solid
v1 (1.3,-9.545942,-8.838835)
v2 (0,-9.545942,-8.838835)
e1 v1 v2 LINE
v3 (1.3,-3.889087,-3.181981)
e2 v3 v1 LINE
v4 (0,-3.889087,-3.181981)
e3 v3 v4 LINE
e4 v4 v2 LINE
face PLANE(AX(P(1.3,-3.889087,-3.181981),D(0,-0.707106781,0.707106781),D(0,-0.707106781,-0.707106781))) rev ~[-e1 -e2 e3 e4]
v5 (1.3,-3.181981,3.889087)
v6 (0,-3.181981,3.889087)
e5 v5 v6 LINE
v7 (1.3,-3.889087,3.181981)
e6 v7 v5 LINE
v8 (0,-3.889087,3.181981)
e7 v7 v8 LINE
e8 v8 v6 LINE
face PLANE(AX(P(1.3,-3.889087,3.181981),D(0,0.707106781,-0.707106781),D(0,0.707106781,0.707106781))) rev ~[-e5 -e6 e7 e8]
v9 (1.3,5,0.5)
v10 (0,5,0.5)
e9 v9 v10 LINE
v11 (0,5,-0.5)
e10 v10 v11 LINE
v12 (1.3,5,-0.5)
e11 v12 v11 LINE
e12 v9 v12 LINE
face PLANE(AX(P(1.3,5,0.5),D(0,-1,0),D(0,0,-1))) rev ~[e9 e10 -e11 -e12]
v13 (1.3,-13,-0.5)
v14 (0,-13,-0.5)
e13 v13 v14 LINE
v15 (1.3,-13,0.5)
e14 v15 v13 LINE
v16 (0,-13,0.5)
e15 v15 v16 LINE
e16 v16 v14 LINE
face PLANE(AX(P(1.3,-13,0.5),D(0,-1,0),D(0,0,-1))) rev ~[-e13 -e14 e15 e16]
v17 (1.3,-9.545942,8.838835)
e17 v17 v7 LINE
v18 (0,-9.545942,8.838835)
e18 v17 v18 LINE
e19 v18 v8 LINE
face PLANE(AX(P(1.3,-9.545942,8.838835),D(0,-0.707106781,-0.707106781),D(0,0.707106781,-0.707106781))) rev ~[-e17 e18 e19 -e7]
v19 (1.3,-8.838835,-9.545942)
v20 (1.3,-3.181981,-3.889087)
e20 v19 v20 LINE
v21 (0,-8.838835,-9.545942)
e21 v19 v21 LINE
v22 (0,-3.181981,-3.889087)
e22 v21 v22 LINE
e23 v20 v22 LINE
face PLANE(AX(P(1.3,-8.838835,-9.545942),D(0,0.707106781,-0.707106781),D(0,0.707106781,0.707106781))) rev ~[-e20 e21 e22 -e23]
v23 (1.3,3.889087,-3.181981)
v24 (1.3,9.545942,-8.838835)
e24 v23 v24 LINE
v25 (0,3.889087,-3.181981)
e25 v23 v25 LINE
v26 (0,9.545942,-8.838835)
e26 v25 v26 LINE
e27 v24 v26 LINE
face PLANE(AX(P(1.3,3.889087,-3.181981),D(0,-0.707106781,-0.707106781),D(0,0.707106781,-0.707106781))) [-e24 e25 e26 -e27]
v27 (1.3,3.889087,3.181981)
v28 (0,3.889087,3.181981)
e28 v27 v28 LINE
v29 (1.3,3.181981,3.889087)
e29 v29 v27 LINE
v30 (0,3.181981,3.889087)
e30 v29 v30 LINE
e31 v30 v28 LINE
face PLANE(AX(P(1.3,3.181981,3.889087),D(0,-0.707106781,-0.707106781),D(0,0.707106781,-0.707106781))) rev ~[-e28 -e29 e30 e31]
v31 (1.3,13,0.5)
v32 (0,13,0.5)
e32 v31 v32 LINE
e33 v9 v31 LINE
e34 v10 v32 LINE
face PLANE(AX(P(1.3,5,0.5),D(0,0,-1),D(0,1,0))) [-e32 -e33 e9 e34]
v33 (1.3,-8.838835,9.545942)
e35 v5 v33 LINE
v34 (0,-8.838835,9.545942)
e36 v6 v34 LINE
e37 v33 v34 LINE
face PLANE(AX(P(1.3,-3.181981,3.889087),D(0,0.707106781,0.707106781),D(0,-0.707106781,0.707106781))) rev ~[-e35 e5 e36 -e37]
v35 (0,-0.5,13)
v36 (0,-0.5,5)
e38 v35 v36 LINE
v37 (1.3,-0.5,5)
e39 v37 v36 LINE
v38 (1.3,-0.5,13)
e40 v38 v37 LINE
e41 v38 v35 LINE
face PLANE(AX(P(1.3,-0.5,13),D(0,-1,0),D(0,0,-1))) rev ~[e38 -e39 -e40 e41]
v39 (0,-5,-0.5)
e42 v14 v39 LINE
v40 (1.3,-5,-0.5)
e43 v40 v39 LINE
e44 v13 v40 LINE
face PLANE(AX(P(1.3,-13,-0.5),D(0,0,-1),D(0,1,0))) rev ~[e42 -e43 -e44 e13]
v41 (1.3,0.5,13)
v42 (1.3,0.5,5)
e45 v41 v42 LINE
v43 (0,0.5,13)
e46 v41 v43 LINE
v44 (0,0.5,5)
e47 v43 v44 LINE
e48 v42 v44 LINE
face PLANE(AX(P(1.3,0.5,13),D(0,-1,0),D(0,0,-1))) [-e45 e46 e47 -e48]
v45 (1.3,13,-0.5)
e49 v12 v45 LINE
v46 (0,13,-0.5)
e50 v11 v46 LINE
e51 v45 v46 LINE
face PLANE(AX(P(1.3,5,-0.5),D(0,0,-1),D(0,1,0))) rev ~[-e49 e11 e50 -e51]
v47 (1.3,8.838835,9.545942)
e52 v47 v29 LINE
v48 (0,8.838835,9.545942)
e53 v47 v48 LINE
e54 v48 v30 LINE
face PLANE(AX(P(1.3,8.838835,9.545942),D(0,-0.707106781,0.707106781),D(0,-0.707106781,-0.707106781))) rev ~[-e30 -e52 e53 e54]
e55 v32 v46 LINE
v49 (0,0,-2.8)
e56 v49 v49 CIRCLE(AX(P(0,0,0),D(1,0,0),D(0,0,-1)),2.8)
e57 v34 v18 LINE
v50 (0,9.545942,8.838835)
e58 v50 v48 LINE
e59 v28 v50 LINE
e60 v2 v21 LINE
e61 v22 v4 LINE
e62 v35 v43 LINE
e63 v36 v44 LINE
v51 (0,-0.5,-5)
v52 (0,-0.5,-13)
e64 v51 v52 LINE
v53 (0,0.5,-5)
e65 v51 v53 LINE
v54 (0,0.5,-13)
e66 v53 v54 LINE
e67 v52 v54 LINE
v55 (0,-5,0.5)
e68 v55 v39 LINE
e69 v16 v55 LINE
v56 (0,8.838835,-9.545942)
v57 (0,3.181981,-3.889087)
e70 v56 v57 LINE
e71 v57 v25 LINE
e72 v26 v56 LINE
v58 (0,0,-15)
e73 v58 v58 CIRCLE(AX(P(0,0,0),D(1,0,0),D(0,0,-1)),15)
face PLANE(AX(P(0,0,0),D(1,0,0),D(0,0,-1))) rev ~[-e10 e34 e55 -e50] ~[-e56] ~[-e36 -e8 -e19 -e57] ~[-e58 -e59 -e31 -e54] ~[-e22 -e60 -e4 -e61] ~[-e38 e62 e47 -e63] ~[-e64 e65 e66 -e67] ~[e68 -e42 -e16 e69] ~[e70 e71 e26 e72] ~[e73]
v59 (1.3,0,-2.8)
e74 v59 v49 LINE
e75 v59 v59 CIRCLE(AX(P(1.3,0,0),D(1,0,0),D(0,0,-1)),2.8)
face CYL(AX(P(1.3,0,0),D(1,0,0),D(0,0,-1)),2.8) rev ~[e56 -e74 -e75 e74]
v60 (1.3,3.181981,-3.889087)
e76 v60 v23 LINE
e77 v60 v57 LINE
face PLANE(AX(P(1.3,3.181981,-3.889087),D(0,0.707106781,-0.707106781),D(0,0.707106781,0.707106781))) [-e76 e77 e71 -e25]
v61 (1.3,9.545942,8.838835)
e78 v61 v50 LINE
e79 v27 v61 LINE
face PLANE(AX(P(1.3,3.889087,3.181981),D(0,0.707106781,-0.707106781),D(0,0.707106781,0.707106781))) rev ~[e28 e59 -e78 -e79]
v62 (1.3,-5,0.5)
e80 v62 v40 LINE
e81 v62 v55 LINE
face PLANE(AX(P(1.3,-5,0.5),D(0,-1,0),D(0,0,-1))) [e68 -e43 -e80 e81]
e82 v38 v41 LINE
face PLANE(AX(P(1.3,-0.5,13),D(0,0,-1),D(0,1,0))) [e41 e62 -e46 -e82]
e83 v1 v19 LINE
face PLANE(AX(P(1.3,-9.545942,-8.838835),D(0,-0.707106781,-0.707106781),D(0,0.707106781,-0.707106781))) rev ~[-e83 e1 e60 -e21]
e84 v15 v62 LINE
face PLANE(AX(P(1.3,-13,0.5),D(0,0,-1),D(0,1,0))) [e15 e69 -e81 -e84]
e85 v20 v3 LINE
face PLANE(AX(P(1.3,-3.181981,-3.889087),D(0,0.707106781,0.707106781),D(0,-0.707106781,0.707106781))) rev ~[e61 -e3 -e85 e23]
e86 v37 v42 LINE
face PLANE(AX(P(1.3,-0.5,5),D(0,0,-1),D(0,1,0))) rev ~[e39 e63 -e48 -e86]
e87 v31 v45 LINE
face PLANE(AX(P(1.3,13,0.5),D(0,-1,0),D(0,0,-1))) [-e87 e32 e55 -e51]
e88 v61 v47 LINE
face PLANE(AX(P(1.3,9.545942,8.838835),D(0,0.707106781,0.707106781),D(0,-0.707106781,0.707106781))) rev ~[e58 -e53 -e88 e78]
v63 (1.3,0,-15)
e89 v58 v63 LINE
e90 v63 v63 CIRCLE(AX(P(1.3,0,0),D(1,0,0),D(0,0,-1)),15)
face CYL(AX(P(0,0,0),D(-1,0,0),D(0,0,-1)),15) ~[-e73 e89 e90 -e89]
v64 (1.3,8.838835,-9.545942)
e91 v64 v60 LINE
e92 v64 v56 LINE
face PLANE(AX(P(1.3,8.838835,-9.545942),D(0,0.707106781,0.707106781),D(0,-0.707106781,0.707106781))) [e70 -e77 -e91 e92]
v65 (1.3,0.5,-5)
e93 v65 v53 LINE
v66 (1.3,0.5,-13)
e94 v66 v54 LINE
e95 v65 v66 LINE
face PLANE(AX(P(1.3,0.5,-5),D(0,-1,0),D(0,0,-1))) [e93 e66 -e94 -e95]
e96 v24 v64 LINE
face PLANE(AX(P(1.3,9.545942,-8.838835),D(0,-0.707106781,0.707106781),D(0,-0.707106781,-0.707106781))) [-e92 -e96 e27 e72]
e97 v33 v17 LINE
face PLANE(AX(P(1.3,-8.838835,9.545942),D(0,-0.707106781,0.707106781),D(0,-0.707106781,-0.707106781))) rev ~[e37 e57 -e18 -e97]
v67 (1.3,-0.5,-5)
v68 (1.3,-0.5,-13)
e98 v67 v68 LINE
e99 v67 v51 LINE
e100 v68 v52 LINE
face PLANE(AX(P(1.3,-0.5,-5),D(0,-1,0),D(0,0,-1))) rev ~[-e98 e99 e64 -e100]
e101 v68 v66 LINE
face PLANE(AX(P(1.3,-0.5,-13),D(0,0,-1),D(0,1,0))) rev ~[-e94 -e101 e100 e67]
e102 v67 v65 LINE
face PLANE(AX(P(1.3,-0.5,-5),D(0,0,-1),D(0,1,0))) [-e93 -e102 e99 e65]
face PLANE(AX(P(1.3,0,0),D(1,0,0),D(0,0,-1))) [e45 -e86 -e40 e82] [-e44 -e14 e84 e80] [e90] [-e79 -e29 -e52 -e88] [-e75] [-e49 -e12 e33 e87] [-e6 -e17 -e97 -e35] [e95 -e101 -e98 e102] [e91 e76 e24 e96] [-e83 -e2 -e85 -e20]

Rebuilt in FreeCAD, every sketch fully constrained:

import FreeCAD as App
import Part
import Sketcher

doc = App.newDocument("Part")
body = doc.addObject("PartDesign::Body", "Body")

sketch1 = doc.addObject("Sketcher::SketchObject", "Sketch")
body.addObject(sketch1)
sketch1.AttachmentSupport = (doc.YZ_Plane, [""])
sketch1.MapMode = "FlatFace"
sketch1.addGeometry(Part.Circle(App.Vector(0, 0, 0), App.Vector(0, 0, 1), 15), False)
sketch1.addConstraint([
    Sketcher.Constraint("Coincident", 0, 3, -1, 1),
    Sketcher.Constraint("Diameter", 0, 30.0),
])
pad1 = doc.addObject("PartDesign::Pad", "Pad")
body.addObject(pad1)
pad1.Profile = sketch1
pad1.Length = 1.3

sketch2 = doc.addObject("Sketcher::SketchObject", "Sketch001")
body.addObject(sketch2)
sketch2.AttachmentSupport = (doc.YZ_Plane, [""])
sketch2.MapMode = "FlatFace"
sketch2.AttachmentOffset = App.Placement(App.Vector(0, 0, 1.3), App.Rotation())
sketch2.addGeometry(Part.Circle(App.Vector(0, 0, 0), App.Vector(0, 0, 1), 2.8), False)
sketch2.addConstraint([
    Sketcher.Constraint("Coincident", 0, 3, -1, 1),
    Sketcher.Constraint("Diameter", 0, 5.6),
])
pocket1 = doc.addObject("PartDesign::Pocket", "Pocket")
body.addObject(pocket1)
pocket1.Profile = sketch2
pocket1.Type = "ThroughAll"

sketch3 = doc.addObject("Sketcher::SketchObject", "Sketch002")
body.addObject(sketch3)
sketch3.AttachmentSupport = (doc.YZ_Plane, [""])
sketch3.MapMode = "FlatFace"
sketch3.AttachmentOffset = App.Placement(App.Vector(0, 0, 1.3), App.Rotation())
sketch3.addGeometry([
    Part.LineSegment(App.Vector(-9.5, 8.8, 0), App.Vector(-3.9, 3.2, 0)),
    Part.LineSegment(App.Vector(-3.9, 3.2, 0), App.Vector(-3.2, 3.9, 0)),
    Part.LineSegment(App.Vector(-3.2, 3.9, 0), App.Vector(-8.8, 9.5, 0)),
    Part.LineSegment(App.Vector(-8.8, 9.5, 0), App.Vector(-9.5, 8.8, 0)),
    Part.LineSegment(App.Vector(-8.8, -9.5, 0), App.Vector(-3.2, -3.9, 0)),
    Part.LineSegment(App.Vector(-3.2, -3.9, 0), App.Vector(-3.9, -3.2, 0)),
    Part.LineSegment(App.Vector(-3.9, -3.2, 0), App.Vector(-9.5, -8.8, 0)),
    Part.LineSegment(App.Vector(-9.5, -8.8, 0), App.Vector(-8.8, -9.5, 0)),
    Part.LineSegment(App.Vector(8.8, 9.5, 0), App.Vector(3.2, 3.9, 0)),
    Part.LineSegment(App.Vector(3.2, 3.9, 0), App.Vector(3.9, 3.2, 0)),
    Part.LineSegment(App.Vector(3.9, 3.2, 0), App.Vector(9.5, 8.8, 0)),
    Part.LineSegment(App.Vector(9.5, 8.8, 0), App.Vector(8.8, 9.5, 0)),
    Part.LineSegment(App.Vector(3.2, -3.9, 0), App.Vector(8.8, -9.5, 0)),
    Part.LineSegment(App.Vector(8.8, -9.5, 0), App.Vector(9.5, -8.8, 0)),
    Part.LineSegment(App.Vector(9.5, -8.8, 0), App.Vector(3.9, -3.2, 0)),
    Part.LineSegment(App.Vector(3.9, -3.2, 0), App.Vector(3.2, -3.9, 0)),
    Part.LineSegment(App.Vector(13, 0.5, 0), App.Vector(5, 0.5, 0)),
    Part.LineSegment(App.Vector(5, 0.5, 0), App.Vector(5, -0.5, 0)),
    Part.LineSegment(App.Vector(5, -0.5, 0), App.Vector(13, -0.5, 0)),
    Part.LineSegment(App.Vector(13, -0.5, 0), App.Vector(13, 0.5, 0)),
    Part.LineSegment(App.Vector(0.5, -5, 0), App.Vector(-0.5, -5, 0)),
    Part.LineSegment(App.Vector(-0.5, -5, 0), App.Vector(-0.5, -13, 0)),
    Part.LineSegment(App.Vector(-0.5, -13, 0), App.Vector(0.5, -13, 0)),
    Part.LineSegment(App.Vector(0.5, -13, 0), App.Vector(0.5, -5, 0)),
    Part.LineSegment(App.Vector(-5, 0.5, 0), App.Vector(-13, 0.5, 0)),
    Part.LineSegment(App.Vector(-13, 0.5, 0), App.Vector(-13, -0.5, 0)),
    Part.LineSegment(App.Vector(-13, -0.5, 0), App.Vector(-5, -0.5, 0)),
    Part.LineSegment(App.Vector(-5, -0.5, 0), App.Vector(-5, 0.5, 0)),
    Part.LineSegment(App.Vector(0.5, 13, 0), App.Vector(-0.5, 13, 0)),
    Part.LineSegment(App.Vector(-0.5, 13, 0), App.Vector(-0.5, 5, 0)),
    Part.LineSegment(App.Vector(-0.5, 5, 0), App.Vector(0.5, 5, 0)),
    Part.LineSegment(App.Vector(0.5, 5, 0), App.Vector(0.5, 13, 0)),
], False)
sketch3.addConstraint([
    Sketcher.Constraint("Coincident", 0, 2, 1, 1),
    Sketcher.Constraint("Coincident", 1, 2, 2, 1),
    Sketcher.Constraint("Coincident", 2, 2, 3, 1),
    Sketcher.Constraint("Coincident", 3, 2, 0, 1),
    Sketcher.Constraint("Coincident", 4, 2, 5, 1),
    Sketcher.Constraint("Coincident", 5, 2, 6, 1),
    Sketcher.Constraint("Coincident", 6, 2, 7, 1),
    Sketcher.Constraint("Coincident", 7, 2, 4, 1),
    Sketcher.Constraint("Coincident", 8, 2, 9, 1),
    Sketcher.Constraint("Coincident", 9, 2, 10, 1),
    Sketcher.Constraint("Coincident", 10, 2, 11, 1),
    Sketcher.Constraint("Coincident", 11, 2, 8, 1),
    Sketcher.Constraint("Coincident", 12, 2, 13, 1),
    Sketcher.Constraint("Coincident", 13, 2, 14, 1),
    Sketcher.Constraint("Coincident", 14, 2, 15, 1),
    Sketcher.Constraint("Coincident", 15, 2, 12, 1),
    Sketcher.Constraint("Coincident", 16, 2, 17, 1),
    Sketcher.Constraint("Coincident", 17, 2, 18, 1),
    Sketcher.Constraint("Coincident", 18, 2, 19, 1),
    Sketcher.Constraint("Coincident", 19, 2, 16, 1),
    Sketcher.Constraint("Coincident", 20, 2, 21, 1),
    Sketcher.Constraint("Coincident", 21, 2, 22, 1),
    Sketcher.Constraint("Coincident", 22, 2, 23, 1),
    Sketcher.Constraint("Coincident", 23, 2, 20, 1),
    Sketcher.Constraint("Coincident", 24, 2, 25, 1),
    Sketcher.Constraint("Coincident", 25, 2, 26, 1),
    Sketcher.Constraint("Coincident", 26, 2, 27, 1),
    Sketcher.Constraint("Coincident", 27, 2, 24, 1),
    Sketcher.Constraint("Coincident", 28, 2, 29, 1),
    Sketcher.Constraint("Coincident", 29, 2, 30, 1),
    Sketcher.Constraint("Coincident", 30, 2, 31, 1),
    Sketcher.Constraint("Coincident", 31, 2, 28, 1),
    Sketcher.Constraint("Horizontal", 16),
    Sketcher.Constraint("Vertical", 17),
    Sketcher.Constraint("Horizontal", 18),
    Sketcher.Constraint("Vertical", 19),
    Sketcher.Constraint("Horizontal", 20),
    Sketcher.Constraint("Vertical", 21),
    Sketcher.Constraint("Horizontal", 22),
    Sketcher.Constraint("Vertical", 23),
    Sketcher.Constraint("Horizontal", 24),
    Sketcher.Constraint("Vertical", 25),
    Sketcher.Constraint("Horizontal", 26),
    Sketcher.Constraint("Vertical", 27),
    Sketcher.Constraint("Horizontal", 28),
    Sketcher.Constraint("Vertical", 29),
    Sketcher.Constraint("Horizontal", 30),
    Sketcher.Constraint("Vertical", 31),
    Sketcher.Constraint("Symmetric", 4, 2, 8, 2, -1, 1),
    Sketcher.Constraint("Symmetric", 5, 2, 9, 2, -1, 1),
    Sketcher.Constraint("Symmetric", 6, 2, 10, 2, -1, 1),
    Sketcher.Constraint("Symmetric", 7, 2, 11, 2, -1, 1),
    Sketcher.Constraint("Symmetric", 2, 2, 12, 2, -1, 1),
    Sketcher.Constraint("Symmetric", 3, 2, 13, 2, -1, 1),
    Sketcher.Constraint("Symmetric", 0, 2, 14, 2, -1, 1),
    Sketcher.Constraint("Symmetric", 1, 2, 15, 2, -1, 1),
    Sketcher.Constraint("Symmetric", 18, 2, 24, 2, -1, 1),
    Sketcher.Constraint("Symmetric", 16, 2, 26, 2, -1, 1),
    Sketcher.Constraint("Symmetric", 22, 2, 28, 2, -1, 1),
    Sketcher.Constraint("Symmetric", 20, 2, 30, 2, -1, 1),
    Sketcher.Constraint("Symmetric", 1, 2, 8, 2, -2),
    Sketcher.Constraint("Symmetric", 0, 2, 9, 2, -2),
    Sketcher.Constraint("Symmetric", 3, 2, 10, 2, -2),
    Sketcher.Constraint("Symmetric", 2, 2, 11, 2, -2),
    Sketcher.Constraint("Perpendicular", 0, 1),
    Sketcher.Constraint("Perpendicular", 1, 2),
    Sketcher.Constraint("Perpendicular", 2, 3),
    Sketcher.Constraint("Parallel", 3, 4),
    Sketcher.Constraint("Horizontal", 19, 2, 24, 2),
    Sketcher.Constraint("Vertical", 21, 2, 28, 2),
    Sketcher.Constraint("Equal", 30, 17),
    Sketcher.Constraint("Equal", 26, 21),
    Sketcher.Constraint("DistanceX", 16, 2, 16, 1, 8.0),
    Sketcher.Constraint("DistanceX", 20, 2, 20, 1, 1.0),
    Sketcher.Constraint("Distance", 0, 8.0),
    Sketcher.Constraint("Distance", 1, 1.0),
    Sketcher.Constraint("DistanceX", -1, 1, 16, 2, 5.0),
    Sketcher.Constraint("DistanceY", 20, 2, -1, 1, 5.0),
    Sketcher.Constraint("DistanceY", -1, 1, 0, 2, 3.181981),
    Sketcher.Constraint("DistanceX", 1, 2, -1, 1, 3.181981),
])
pocket2 = doc.addObject("PartDesign::Pocket", "Pocket001")
body.addObject(pocket2)
pocket2.Profile = sketch3
pocket2.Type = "ThroughAll"

doc.recompute()
